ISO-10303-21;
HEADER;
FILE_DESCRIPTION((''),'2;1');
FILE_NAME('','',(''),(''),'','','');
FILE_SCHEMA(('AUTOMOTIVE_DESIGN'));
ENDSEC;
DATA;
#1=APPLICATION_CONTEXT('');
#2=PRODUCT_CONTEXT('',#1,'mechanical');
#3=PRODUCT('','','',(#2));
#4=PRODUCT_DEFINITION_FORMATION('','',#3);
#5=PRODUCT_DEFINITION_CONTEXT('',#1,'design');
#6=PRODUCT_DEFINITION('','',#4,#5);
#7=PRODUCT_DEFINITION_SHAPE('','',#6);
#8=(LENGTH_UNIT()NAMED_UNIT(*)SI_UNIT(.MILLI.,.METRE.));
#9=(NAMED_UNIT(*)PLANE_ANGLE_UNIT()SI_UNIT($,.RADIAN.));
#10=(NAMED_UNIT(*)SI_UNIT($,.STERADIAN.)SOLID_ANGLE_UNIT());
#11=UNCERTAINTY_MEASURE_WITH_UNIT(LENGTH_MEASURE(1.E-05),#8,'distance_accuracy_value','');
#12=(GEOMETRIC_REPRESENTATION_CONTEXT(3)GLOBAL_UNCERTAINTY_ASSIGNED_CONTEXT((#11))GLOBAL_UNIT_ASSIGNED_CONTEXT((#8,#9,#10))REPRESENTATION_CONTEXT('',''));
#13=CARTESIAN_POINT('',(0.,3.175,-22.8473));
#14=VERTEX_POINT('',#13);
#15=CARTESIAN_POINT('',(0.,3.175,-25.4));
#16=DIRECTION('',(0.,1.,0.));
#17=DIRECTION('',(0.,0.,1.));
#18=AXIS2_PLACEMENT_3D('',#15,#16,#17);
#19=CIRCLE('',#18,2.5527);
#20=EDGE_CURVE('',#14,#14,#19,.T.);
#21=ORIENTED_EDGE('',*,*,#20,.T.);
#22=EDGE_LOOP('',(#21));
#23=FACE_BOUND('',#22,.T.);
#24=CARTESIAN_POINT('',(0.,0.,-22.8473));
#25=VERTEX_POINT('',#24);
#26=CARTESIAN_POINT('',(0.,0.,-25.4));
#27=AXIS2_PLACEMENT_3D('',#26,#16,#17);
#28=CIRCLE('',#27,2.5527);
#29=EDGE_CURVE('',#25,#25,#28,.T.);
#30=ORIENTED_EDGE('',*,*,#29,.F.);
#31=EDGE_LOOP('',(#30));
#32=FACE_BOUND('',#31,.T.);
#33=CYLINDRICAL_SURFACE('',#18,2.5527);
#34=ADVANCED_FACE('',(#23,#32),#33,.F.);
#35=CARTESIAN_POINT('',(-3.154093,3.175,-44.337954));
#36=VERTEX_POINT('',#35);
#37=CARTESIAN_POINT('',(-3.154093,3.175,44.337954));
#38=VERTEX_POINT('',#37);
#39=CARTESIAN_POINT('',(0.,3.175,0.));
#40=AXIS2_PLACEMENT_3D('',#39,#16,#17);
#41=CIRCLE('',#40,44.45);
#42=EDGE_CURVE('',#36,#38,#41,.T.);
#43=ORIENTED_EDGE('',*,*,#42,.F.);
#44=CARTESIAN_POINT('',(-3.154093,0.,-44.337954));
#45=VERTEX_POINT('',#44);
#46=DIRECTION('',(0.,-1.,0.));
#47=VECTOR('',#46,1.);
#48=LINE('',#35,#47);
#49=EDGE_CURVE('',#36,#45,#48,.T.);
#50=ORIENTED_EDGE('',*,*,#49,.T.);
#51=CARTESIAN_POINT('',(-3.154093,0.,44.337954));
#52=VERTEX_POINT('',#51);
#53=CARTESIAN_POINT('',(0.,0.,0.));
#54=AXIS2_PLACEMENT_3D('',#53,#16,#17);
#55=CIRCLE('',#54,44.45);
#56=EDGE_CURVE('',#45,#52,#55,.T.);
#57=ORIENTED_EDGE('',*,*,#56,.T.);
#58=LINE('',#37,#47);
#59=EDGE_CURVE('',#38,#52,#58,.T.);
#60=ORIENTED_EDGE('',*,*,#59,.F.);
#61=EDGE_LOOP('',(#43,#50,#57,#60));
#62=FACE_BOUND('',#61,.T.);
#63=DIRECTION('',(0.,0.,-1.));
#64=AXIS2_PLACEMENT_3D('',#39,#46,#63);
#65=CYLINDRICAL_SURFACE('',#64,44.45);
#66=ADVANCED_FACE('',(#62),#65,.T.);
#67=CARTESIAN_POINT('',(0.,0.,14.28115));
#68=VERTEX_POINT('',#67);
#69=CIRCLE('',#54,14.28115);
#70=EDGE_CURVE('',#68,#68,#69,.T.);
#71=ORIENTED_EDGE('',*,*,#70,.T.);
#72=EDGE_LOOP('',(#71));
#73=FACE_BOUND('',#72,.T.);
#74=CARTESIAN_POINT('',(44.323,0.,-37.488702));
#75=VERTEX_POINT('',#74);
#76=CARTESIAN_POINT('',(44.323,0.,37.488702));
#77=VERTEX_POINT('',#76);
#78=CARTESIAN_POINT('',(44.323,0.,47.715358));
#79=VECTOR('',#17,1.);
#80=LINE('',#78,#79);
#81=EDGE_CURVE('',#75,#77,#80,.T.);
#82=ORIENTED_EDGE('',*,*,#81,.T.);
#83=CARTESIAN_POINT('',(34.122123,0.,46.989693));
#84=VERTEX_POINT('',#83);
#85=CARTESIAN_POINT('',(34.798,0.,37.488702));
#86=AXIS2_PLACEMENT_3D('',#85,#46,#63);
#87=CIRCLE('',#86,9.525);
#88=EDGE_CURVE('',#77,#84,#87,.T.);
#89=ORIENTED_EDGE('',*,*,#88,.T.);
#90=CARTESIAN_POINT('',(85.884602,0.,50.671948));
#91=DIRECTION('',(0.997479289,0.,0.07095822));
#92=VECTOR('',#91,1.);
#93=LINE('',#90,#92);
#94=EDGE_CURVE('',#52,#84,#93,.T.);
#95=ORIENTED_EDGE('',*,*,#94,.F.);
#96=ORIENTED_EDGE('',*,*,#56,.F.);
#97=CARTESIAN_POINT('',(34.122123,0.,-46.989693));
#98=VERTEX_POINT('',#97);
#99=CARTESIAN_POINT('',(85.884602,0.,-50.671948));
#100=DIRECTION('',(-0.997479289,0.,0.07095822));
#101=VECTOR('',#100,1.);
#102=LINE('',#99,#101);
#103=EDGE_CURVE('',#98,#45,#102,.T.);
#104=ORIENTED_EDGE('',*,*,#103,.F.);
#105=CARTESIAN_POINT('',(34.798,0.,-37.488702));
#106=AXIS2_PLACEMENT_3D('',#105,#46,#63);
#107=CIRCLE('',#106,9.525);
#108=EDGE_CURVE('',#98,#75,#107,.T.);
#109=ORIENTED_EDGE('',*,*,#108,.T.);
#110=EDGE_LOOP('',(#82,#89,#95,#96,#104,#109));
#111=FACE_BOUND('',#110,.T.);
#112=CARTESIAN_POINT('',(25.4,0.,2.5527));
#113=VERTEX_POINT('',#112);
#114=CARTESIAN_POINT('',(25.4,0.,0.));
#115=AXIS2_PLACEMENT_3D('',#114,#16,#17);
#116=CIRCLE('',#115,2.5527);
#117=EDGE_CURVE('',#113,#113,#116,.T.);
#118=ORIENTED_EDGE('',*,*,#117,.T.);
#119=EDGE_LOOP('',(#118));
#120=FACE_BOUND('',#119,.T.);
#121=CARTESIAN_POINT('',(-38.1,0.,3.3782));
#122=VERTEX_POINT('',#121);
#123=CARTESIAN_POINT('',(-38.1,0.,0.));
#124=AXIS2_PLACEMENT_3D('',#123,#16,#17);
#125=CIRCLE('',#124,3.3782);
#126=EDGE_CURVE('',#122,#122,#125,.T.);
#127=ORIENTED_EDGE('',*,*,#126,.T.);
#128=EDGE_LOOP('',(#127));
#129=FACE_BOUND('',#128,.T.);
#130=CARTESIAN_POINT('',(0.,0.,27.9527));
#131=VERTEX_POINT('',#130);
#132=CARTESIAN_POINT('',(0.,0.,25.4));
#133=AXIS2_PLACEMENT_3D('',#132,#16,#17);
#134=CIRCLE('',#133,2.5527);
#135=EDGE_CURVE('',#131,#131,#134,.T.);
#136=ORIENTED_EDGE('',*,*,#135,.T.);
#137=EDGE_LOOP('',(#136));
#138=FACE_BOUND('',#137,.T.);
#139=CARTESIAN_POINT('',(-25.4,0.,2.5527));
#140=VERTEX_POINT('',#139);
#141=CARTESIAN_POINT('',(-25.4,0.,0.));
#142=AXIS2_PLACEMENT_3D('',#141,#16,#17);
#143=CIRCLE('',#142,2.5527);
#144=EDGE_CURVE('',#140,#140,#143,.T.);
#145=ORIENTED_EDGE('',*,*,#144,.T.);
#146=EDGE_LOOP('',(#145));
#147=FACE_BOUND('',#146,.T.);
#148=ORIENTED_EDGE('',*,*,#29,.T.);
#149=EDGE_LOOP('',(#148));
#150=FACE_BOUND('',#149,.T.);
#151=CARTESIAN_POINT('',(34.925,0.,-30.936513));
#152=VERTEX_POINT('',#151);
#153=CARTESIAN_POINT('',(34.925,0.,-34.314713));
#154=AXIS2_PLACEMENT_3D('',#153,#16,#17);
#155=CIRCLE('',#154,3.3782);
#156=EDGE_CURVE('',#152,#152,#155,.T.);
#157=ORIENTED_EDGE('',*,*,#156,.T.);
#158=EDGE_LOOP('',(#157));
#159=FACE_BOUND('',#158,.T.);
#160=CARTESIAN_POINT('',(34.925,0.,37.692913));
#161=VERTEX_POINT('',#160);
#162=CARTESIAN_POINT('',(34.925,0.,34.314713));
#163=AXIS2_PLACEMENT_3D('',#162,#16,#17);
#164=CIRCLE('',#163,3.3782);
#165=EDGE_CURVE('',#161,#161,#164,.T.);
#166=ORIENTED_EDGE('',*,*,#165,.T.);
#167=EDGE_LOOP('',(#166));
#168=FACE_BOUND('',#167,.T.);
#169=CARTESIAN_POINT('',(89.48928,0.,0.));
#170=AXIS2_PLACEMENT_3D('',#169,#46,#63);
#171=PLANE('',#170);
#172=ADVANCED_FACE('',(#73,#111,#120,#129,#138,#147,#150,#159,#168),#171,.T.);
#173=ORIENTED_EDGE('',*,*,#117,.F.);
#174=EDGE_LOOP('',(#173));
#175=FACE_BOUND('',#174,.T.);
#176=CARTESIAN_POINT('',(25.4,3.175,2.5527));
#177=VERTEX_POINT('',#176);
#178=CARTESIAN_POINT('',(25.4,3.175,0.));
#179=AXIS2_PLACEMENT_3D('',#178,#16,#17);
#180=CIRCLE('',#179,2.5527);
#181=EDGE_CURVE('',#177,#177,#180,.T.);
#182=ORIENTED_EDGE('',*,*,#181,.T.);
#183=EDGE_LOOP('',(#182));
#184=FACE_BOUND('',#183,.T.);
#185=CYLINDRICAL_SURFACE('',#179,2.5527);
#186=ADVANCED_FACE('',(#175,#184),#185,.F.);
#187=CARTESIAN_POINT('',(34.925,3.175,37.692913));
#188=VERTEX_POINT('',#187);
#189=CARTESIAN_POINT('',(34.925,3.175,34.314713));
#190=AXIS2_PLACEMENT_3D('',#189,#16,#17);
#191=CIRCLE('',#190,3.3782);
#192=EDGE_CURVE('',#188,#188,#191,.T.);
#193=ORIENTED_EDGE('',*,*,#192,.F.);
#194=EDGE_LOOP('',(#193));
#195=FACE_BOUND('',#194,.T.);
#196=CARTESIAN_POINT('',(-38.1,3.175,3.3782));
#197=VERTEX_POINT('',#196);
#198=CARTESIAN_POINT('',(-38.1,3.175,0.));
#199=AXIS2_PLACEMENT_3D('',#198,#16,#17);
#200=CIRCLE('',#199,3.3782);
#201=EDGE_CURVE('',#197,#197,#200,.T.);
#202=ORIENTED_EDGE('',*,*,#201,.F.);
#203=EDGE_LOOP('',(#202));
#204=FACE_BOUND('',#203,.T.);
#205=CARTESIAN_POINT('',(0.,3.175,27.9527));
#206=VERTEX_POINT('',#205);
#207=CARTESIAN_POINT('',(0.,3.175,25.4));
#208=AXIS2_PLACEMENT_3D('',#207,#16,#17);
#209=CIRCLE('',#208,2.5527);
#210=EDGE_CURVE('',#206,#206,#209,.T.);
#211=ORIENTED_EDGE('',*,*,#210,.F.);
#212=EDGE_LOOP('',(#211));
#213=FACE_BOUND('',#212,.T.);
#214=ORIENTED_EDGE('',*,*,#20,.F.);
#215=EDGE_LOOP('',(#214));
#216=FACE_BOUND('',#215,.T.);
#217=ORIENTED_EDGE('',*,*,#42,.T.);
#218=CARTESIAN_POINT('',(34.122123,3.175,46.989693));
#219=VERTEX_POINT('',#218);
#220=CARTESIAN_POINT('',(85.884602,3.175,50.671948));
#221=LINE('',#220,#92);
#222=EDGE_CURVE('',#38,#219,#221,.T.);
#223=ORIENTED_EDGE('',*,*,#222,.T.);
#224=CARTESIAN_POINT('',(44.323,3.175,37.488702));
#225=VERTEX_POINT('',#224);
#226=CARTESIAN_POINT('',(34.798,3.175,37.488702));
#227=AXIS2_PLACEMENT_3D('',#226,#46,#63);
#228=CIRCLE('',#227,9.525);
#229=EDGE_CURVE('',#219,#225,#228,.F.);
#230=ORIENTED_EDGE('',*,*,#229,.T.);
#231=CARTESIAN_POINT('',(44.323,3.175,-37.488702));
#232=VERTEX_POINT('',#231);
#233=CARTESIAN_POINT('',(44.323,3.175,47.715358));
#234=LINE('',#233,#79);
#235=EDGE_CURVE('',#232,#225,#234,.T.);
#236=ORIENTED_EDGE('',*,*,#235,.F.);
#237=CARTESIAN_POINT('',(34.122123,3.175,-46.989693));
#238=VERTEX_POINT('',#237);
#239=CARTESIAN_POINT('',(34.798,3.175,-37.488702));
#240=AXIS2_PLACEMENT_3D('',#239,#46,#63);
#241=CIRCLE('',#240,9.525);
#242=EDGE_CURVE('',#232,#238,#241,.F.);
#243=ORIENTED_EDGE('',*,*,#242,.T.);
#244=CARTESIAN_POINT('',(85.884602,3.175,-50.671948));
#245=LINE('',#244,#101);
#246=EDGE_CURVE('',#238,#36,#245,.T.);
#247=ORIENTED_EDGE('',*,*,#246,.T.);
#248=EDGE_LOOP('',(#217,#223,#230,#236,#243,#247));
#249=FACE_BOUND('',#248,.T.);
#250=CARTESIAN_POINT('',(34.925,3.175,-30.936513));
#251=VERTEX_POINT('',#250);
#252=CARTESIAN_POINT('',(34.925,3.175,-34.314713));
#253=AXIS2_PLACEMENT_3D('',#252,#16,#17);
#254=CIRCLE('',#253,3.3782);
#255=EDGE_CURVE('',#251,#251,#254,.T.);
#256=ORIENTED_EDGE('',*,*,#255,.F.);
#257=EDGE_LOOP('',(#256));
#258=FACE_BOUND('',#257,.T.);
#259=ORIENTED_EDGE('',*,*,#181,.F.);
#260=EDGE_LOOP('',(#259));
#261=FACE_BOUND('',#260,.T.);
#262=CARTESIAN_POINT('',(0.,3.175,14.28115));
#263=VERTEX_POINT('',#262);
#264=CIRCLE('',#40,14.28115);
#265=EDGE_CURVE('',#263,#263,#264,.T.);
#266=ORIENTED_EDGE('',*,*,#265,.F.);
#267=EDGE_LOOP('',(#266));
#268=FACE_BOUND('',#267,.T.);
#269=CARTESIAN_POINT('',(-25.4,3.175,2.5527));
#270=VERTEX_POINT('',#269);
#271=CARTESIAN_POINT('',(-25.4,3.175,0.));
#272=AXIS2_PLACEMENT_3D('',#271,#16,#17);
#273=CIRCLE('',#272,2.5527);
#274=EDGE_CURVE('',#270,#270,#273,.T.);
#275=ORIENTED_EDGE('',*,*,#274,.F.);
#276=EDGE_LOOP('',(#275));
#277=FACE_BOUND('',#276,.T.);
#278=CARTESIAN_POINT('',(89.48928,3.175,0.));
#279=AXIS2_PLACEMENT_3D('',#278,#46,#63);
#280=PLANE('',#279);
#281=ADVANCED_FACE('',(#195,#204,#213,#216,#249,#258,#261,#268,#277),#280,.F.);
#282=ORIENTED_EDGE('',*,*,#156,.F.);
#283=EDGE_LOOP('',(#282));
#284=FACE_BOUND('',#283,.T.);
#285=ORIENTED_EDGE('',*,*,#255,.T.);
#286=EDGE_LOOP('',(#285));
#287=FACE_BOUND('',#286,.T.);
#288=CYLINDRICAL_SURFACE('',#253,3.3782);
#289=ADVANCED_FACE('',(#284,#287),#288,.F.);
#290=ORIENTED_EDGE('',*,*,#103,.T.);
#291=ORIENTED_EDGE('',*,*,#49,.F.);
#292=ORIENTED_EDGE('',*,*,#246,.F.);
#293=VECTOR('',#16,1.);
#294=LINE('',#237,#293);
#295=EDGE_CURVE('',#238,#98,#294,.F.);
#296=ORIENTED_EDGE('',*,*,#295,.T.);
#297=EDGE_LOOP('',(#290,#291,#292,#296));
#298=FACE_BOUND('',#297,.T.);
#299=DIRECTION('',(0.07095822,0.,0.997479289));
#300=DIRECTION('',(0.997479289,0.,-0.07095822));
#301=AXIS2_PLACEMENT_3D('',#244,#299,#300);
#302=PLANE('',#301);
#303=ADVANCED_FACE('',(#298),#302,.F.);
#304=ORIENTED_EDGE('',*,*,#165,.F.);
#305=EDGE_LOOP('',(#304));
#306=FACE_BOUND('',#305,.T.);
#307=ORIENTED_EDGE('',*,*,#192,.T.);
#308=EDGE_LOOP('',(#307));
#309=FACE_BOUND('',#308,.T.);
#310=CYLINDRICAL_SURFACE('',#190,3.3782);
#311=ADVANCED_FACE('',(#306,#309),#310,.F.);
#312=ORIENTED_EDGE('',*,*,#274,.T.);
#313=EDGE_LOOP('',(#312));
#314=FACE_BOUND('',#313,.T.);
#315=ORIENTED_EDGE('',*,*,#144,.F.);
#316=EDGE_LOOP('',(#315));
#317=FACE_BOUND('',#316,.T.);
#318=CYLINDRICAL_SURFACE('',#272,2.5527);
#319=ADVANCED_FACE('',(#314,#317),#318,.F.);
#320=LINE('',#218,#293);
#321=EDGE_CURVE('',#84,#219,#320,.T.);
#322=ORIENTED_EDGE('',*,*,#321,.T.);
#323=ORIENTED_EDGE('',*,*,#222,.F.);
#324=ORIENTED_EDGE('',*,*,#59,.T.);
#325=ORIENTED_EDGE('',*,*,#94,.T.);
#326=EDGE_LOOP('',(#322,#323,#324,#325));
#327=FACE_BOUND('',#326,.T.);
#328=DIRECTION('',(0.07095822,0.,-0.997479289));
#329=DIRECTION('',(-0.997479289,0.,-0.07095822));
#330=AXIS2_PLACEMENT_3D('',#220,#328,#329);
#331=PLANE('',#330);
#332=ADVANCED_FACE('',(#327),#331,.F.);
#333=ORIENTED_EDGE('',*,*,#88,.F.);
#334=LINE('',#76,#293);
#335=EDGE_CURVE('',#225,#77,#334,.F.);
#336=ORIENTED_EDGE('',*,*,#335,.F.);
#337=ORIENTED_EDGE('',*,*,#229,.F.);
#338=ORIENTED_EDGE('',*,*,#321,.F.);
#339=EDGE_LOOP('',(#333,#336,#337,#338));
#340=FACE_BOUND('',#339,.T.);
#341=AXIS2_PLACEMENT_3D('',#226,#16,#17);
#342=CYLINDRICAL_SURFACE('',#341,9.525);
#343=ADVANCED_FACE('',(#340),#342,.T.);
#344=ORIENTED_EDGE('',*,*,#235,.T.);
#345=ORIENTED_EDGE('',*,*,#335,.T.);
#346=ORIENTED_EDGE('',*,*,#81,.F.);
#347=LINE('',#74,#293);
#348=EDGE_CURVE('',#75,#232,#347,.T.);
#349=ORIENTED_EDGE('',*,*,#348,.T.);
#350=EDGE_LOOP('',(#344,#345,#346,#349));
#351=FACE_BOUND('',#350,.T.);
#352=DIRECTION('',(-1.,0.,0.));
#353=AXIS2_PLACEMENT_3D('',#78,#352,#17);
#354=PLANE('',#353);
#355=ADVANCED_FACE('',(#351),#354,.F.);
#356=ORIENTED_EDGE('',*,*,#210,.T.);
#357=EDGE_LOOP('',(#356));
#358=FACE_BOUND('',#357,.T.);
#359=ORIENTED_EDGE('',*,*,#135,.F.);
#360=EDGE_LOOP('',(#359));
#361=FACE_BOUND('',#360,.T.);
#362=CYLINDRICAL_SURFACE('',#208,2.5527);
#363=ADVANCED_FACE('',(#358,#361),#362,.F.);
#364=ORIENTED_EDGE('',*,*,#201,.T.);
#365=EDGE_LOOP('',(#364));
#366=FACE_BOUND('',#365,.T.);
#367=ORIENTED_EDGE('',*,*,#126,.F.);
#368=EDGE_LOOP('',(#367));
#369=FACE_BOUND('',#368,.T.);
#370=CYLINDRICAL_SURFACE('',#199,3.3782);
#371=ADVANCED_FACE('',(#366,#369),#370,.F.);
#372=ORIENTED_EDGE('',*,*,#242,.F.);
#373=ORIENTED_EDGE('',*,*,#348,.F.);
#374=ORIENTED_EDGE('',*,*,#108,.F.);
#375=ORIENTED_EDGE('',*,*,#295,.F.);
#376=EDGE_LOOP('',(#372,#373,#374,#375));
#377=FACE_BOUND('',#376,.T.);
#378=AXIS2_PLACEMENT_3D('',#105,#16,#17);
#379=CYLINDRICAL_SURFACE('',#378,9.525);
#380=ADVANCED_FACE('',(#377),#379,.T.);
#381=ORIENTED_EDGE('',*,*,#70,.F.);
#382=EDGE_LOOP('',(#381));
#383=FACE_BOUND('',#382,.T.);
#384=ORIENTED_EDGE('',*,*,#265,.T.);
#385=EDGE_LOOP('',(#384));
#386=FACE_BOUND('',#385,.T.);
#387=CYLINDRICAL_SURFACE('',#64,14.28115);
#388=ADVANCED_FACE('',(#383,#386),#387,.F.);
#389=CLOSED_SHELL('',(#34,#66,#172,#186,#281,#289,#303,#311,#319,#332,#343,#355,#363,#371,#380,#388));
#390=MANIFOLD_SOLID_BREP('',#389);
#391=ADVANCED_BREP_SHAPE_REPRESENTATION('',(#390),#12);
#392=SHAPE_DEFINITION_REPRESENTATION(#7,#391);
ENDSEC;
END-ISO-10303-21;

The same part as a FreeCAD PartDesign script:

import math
import FreeCAD as App
import Part
import Sketcher
from FreeCAD import Vector
Q = App.Units.Quantity


def edges_at(feature, points):
    """Names of the edges that pass closest to the given points."""
    edges = feature.Shape.Edges
    near = lambda p: min(range(len(edges)), key=lambda i: edges[i].distToShape(Part.Vertex(*p))[0])
    return sorted({f"Edge{near(p) + 1}" for p in points})


def add_polygon(sketch, points):
    """Adds a closed chain of lines whose ends are joined by coincident constraints."""
    first, n = sketch.GeometryCount, len(points)
    for a, b in zip(points, points[1:] + points[:1]):
        sketch.addGeometry(Part.LineSegment(App.Vector(*a, 0), App.Vector(*b, 0)), False)
    for i in range(n):
        sketch.addConstraint(Sketcher.Constraint("Coincident", first + i, 2, first + (i + 1) % n, 1))

doc = App.newDocument("Part")
body = doc.addObject("PartDesign::Body", "Body")

sketch1 = body.newObject("Sketcher::SketchObject", "Sketch")
sketch1.AttachmentSupport = (doc.getObject("XZ_Plane"), [""])
sketch1.MapMode = "FlatFace"
sketch1.addGeometry(Part.LineSegment(Vector(85.884602, -50.671948, 0), Vector(-3.154093, -44.337954, 0)), False)
sketch1.addGeometry(Part.ArcOfCircle(Part.Circle(Vector(0, 0, 0), Vector(0, 0, 1), 44.45), math.radians(94.069026), math.radians(265.930974)), False)
sketch1.addGeometry(Part.LineSegment(Vector(-3.154093, 44.337954, 0), Vector(85.884602, 50.671948, 0)), False)
sketch1.addGeometry(Part.ArcOfCircle(Part.Circle(Vector(89.48928, 0, 0), Vector(0, 0, 1), 50.8), math.radians(-94.069026), math.radians(94.069026)), False)
sketch1.addGeometry(Part.Circle(Vector(0, 0, 0), Vector(0, 0, 1), 14.28115), False)
sketch1.addGeometry(Part.Circle(Vector(89.48928, 0, 0), Vector(0, 0, 1), 14.2875), False)
sketch1.addConstraint(Sketcher.Constraint("Tangent", 0, 2, 1, 2))
sketch1.addConstraint(Sketcher.Constraint("Tangent", 1, 1, 2, 1))
sketch1.addConstraint(Sketcher.Constraint("Tangent", 2, 2, 3, 2))
sketch1.addConstraint(Sketcher.Constraint("Tangent", 3, 1, 0, 1))
sketch1.addConstraint(Sketcher.Constraint("Coincident", 1, 3, -1, 1))
sketch1.addConstraint(Sketcher.Constraint("Coincident", 4, 3, -1, 1))
sketch1.addConstraint(Sketcher.Constraint("Coincident", 5, 3, 3, 3))
sketch1.addConstraint(Sketcher.Constraint("PointOnObject", 3, 3, -1))
sketch1.addConstraint(Sketcher.Constraint("Radius", 3, Q("2 in")))
sketch1.addConstraint(Sketcher.Constraint("Radius", 1, Q("1.75 in")))
sketch1.addConstraint(Sketcher.Constraint("Diameter", 5, Q("1.125 in")))
sketch1.addConstraint(Sketcher.Constraint("Diameter", 4, Q("1.1245 in")))
sketch1.addConstraint(Sketcher.Constraint("DistanceX", -1, 1, 3, 3, Q("3.5232 in")))
pad1 = body.newObject("PartDesign::Pad", "Pad")
pad1.Profile = sketch1
pad1.Length = Q("0.125 in")
pad1.Reversed = True

sketch2 = body.newObject("Sketcher::SketchObject", "Sketch001")
sketch2.AttachmentSupport = (doc.getObject("XZ_Plane"), [""])
sketch2.MapMode = "FlatFace"
sketch2.AttachmentOffset = App.Placement(Vector(0, 0, -0.125 * 25.4), App.Rotation())
sketch2.addGeometry(Part.Circle(Vector(0, -25.4, 0), Vector(0, 0, 1), 2.5527), False)
sketch2.addGeometry(Part.Circle(Vector(25.4, 0, 0), Vector(0, 0, 1), 2.5527), False)
sketch2.addGeometry(Part.Circle(Vector(0, 25.4, 0), Vector(0, 0, 1), 2.5527), False)
sketch2.addGeometry(Part.Circle(Vector(-25.4, 0, 0), Vector(0, 0, 1), 2.5527), False)
sketch2.addConstraint(Sketcher.Constraint("Equal", 0, 1))
sketch2.addConstraint(Sketcher.Constraint("Equal", 1, 2))
sketch2.addConstraint(Sketcher.Constraint("Equal", 2, 3))
sketch2.addConstraint(Sketcher.Constraint("Symmetric", 0, 3, 2, 3, -1, 1))
sketch2.addConstraint(Sketcher.Constraint("Symmetric", 1, 3, 3, 3, -1, 1))
sketch2.addConstraint(Sketcher.Constraint("PointOnObject", 0, 3, -2))
sketch2.addConstraint(Sketcher.Constraint("PointOnObject", 1, 3, -1))
sketch2.addConstraint(Sketcher.Constraint("Diameter", 0, Q("0.201 in")))
sketch2.addConstraint(Sketcher.Constraint("DistanceY", 0, 3, -1, 1, Q("1 in")))
sketch2.addConstraint(Sketcher.Constraint("DistanceX", -1, 1, 1, 3, Q("1 in")))
doc.recompute()
hole = body.newObject("PartDesign::Hole", "Hole")
hole.Profile = sketch2
hole.ThreadType = "None"
hole.Diameter = Q("0.201 in")
hole.DepthType = "ThroughAll"
hole.Reversed = True

sketch3 = body.newObject("Sketcher::SketchObject", "Sketch002")
sketch3.AttachmentSupport = (doc.getObject("XZ_Plane"), [""])
sketch3.MapMode = "FlatFace"
sketch3.AttachmentOffset = App.Placement(Vector(0, 0, -0.125 * 25.4), App.Rotation())
sketch3.addGeometry(Part.Circle(Vector(54.56428, -34.925, 0), Vector(0, 0, 1), 3.3782), False)
sketch3.addGeometry(Part.Circle(Vector(54.56428, 34.925, 0), Vector(0, 0, 1), 3.3782), False)
sketch3.addGeometry(Part.Circle(Vector(114.88928, -25.4, 0), Vector(0, 0, 1), 3.3782), False)
sketch3.addGeometry(Part.Circle(Vector(114.88928, 25.4, 0), Vector(0, 0, 1), 3.3782), False)
sketch3.addGeometry(Part.Circle(Vector(-38.1, 0, 0), Vector(0, 0, 1), 3.3782), False)
sketch3.addGeometry(Part.Circle(Vector(34.925, -34.314713, 0), Vector(0, 0, 1), 3.3782), False)
sketch3.addGeometry(Part.Circle(Vector(34.925, 34.314713, 0), Vector(0, 0, 1), 3.3782), False)
sketch3.addConstraint(Sketcher.Constraint("Equal", 0, 1))
sketch3.addConstraint(Sketcher.Constraint("Equal", 1, 2))
sketch3.addConstraint(Sketcher.Constraint("Equal", 2, 3))
sketch3.addConstraint(Sketcher.Constraint("Equal", 3, 4))
sketch3.addConstraint(Sketcher.Constraint("Equal", 4, 5))
sketch3.addConstraint(Sketcher.Constraint("Equal", 5, 6))
sketch3.addConstraint(Sketcher.Constraint("Symmetric", 0, 3, 1, 3, -1))
sketch3.addConstraint(Sketcher.Constraint("Symmetric", 2, 3, 3, 3, -1))
sketch3.addConstraint(Sketcher.Constraint("Symmetric", 5, 3, 6, 3, -1))
sketch3.addConstraint(Sketcher.Constraint("PointOnObject", 4, 3, -1))
sketch3.addConstraint(Sketcher.Constraint("Diameter", 0, Q("0.266 in")))
sketch3.addConstraint(Sketcher.Constraint("DistanceY", 2, 3, -1, 1, Q("1 in")))
sketch3.addConstraint(Sketcher.Constraint("DistanceX", 4, 3, -1, 1, Q("1.5 in")))
sketch3.addConstraint(Sketcher.Constraint("DistanceY", 0, 3, 1, 3, Q("2.75 in")))
sketch3.addConstraint(Sketcher.Constraint("DistanceX", -1, 1, 5, 3, Q("1.375 in")))
sketch3.addConstraint(Sketcher.Constraint("DistanceX", 0, 3, 2, 3, Q("2.375 in")))
sketch3.addConstraint(Sketcher.Constraint("DistanceX", -1, 1, 0, 3, Q("2.1482 in")))
sketch3.addConstraint(Sketcher.Constraint("DistanceY", 5, 3, -1, 1, Q("34.314713 mm")))
doc.recompute()
hole2 = body.newObject("PartDesign::Hole", "Hole001")
hole2.Profile = sketch3
hole2.ThreadType = "None"
hole2.Diameter = Q("0.266 in")
hole2.DepthType = "ThroughAll"
hole2.Reversed = True

sketch4 = body.newObject("Sketcher::SketchObject", "Sketch003")
sketch4.AttachmentSupport = (doc.getObject("XZ_Plane"), [""])
sketch4.MapMode = "FlatFace"
sketch4.AttachmentOffset = App.Placement(Vector(0, 0, -0.125 * 25.4), App.Rotation())
add_polygon(sketch4, [(140.28928, -54.542163), (44.323, -47.715358), (44.323, 47.715358), (140.28928, 54.542163)])
sketch4.addConstraint(Sketcher.Constraint("Vertical", 1))
sketch4.addConstraint(Sketcher.Constraint("Vertical", 3))
sketch4.addConstraint(Sketcher.Constraint("Equal", 0, 2))
sketch4.addConstraint(Sketcher.Constraint("DistanceX", -1, 1, 0, 2, Q("1.745 in")))
sketch4.addConstraint(Sketcher.Constraint("DistanceX", -1, 1, 2, 2, Q("5.5232 in")))
sketch4.addConstraint(Sketcher.Constraint("DistanceY", 1, 1, 1, 2, Q("95.430716 mm")))
sketch4.addConstraint(Sketcher.Constraint("DistanceY", 3, 2, 3, 1, Q("109.084325 mm")))
sketch4.addConstraint(Sketcher.Constraint("DistanceY", 0, 2, -1, 1, Q("47.715358 mm")))
pocket1 = body.newObject("PartDesign::Pocket", "Pocket")
pocket1.Profile = sketch4
pocket1.Type = "ThroughAll"
pocket1.Reversed = True
doc.recompute()

fillet = body.newObject("PartDesign::Fillet", "Fillet")
fillet.Base = (pocket1, edges_at(pocket1, [(44.323, 1.587, -47.715), (44.323, 1.587, 47.715)]))
fillet.Radius = Q("0.375 in")

doc.recompute()
